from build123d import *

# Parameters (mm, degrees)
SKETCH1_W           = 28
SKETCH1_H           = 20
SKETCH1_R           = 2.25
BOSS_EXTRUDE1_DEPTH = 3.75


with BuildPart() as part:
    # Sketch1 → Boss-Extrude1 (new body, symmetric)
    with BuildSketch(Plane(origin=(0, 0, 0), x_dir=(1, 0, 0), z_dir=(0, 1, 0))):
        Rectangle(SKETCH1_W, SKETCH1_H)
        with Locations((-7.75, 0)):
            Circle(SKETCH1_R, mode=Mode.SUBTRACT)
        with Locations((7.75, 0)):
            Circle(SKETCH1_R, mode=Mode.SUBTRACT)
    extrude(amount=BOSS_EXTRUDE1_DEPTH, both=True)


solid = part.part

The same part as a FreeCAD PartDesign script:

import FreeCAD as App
import Part
import Sketcher

doc = App.newDocument("Part")
params = doc.addObject("Spreadsheet::Sheet", "Params")
for row, (alias, value) in enumerate([
    ("sketch1_diameter", "4.5 mm"),
    ("sketch1_width", "28 mm"),
    ("sketch1_height", "20 mm"),
    ("pad1_length", "7.5 mm"),
], start=1):
    params.set(f"A{row}", alias)
    params.set(f"B{row}", "=" + value)
    params.setAlias(f"B{row}", alias)

body = doc.addObject("PartDesign::Body", "Body")

# Sketch on XZ plane
sketch1 = body.newObject("Sketcher::SketchObject", "Sketch")
sketch1.AttachmentSupport = (doc.getObject("XZ_Plane"), [""])
sketch1.MapMode = "FlatFace"
sketch1.addGeometry([
    Part.LineSegment(App.Vector(-14, -10, 0), App.Vector(-14, 10, 0)),  # 0
    Part.LineSegment(App.Vector(-14, 10, 0), App.Vector(14, 10, 0)),  # 1
    Part.LineSegment(App.Vector(14, 10, 0), App.Vector(14, -10, 0)),  # 2
    Part.LineSegment(App.Vector(14, -10, 0), App.Vector(-14, -10, 0)),  # 3
    Part.Circle(App.Vector(-7.75, 0, 0), App.Vector(0, 0, 1), 2.25),  # 4
    Part.Circle(App.Vector(7.75, 0, 0), App.Vector(0, 0, 1), 2.25),  # 5
], False)
sketch1.addConstraint([
    Sketcher.Constraint("Coincident", 0, 2, 1, 1),
    Sketcher.Constraint("Coincident", 1, 2, 2, 1),
    Sketcher.Constraint("Coincident", 2, 2, 3, 1),
    Sketcher.Constraint("Coincident", 3, 2, 0, 1),
    Sketcher.Constraint("Vertical", 0),
    Sketcher.Constraint("Horizontal", 1),
    Sketcher.Constraint("Vertical", 2),
    Sketcher.Constraint("Horizontal", 3),
    Sketcher.Constraint("Equal", 4, 5),
    Sketcher.Constraint("Symmetric", 4, 3, 5, 3, -1, 1),
    Sketcher.Constraint("Symmetric", 0, 2, 2, 2, -1, 1),
    Sketcher.Constraint("PointOnObject", 4, 3, -1),
    Sketcher.Constraint("Diameter", 4, 4.5),
    Sketcher.Constraint("DistanceX", 1, 1, 1, 2, 28.0),
    Sketcher.Constraint("DistanceY", 0, 1, 0, 2, 20.0),
    Sketcher.Constraint("DistanceX", 4, 3, 5, 3, 15.5),
])
sketch1.setExpression("Constraints[12]", "Params.sketch1_diameter")
sketch1.setExpression("Constraints[13]", "Params.sketch1_width")
sketch1.setExpression("Constraints[14]", "Params.sketch1_height")
pad1 = body.newObject("PartDesign::Pad", "Pad")
pad1.Profile = sketch1
pad1.setExpression("Length", "Params.pad1_length")
pad1.Midplane = True

doc.recompute()
